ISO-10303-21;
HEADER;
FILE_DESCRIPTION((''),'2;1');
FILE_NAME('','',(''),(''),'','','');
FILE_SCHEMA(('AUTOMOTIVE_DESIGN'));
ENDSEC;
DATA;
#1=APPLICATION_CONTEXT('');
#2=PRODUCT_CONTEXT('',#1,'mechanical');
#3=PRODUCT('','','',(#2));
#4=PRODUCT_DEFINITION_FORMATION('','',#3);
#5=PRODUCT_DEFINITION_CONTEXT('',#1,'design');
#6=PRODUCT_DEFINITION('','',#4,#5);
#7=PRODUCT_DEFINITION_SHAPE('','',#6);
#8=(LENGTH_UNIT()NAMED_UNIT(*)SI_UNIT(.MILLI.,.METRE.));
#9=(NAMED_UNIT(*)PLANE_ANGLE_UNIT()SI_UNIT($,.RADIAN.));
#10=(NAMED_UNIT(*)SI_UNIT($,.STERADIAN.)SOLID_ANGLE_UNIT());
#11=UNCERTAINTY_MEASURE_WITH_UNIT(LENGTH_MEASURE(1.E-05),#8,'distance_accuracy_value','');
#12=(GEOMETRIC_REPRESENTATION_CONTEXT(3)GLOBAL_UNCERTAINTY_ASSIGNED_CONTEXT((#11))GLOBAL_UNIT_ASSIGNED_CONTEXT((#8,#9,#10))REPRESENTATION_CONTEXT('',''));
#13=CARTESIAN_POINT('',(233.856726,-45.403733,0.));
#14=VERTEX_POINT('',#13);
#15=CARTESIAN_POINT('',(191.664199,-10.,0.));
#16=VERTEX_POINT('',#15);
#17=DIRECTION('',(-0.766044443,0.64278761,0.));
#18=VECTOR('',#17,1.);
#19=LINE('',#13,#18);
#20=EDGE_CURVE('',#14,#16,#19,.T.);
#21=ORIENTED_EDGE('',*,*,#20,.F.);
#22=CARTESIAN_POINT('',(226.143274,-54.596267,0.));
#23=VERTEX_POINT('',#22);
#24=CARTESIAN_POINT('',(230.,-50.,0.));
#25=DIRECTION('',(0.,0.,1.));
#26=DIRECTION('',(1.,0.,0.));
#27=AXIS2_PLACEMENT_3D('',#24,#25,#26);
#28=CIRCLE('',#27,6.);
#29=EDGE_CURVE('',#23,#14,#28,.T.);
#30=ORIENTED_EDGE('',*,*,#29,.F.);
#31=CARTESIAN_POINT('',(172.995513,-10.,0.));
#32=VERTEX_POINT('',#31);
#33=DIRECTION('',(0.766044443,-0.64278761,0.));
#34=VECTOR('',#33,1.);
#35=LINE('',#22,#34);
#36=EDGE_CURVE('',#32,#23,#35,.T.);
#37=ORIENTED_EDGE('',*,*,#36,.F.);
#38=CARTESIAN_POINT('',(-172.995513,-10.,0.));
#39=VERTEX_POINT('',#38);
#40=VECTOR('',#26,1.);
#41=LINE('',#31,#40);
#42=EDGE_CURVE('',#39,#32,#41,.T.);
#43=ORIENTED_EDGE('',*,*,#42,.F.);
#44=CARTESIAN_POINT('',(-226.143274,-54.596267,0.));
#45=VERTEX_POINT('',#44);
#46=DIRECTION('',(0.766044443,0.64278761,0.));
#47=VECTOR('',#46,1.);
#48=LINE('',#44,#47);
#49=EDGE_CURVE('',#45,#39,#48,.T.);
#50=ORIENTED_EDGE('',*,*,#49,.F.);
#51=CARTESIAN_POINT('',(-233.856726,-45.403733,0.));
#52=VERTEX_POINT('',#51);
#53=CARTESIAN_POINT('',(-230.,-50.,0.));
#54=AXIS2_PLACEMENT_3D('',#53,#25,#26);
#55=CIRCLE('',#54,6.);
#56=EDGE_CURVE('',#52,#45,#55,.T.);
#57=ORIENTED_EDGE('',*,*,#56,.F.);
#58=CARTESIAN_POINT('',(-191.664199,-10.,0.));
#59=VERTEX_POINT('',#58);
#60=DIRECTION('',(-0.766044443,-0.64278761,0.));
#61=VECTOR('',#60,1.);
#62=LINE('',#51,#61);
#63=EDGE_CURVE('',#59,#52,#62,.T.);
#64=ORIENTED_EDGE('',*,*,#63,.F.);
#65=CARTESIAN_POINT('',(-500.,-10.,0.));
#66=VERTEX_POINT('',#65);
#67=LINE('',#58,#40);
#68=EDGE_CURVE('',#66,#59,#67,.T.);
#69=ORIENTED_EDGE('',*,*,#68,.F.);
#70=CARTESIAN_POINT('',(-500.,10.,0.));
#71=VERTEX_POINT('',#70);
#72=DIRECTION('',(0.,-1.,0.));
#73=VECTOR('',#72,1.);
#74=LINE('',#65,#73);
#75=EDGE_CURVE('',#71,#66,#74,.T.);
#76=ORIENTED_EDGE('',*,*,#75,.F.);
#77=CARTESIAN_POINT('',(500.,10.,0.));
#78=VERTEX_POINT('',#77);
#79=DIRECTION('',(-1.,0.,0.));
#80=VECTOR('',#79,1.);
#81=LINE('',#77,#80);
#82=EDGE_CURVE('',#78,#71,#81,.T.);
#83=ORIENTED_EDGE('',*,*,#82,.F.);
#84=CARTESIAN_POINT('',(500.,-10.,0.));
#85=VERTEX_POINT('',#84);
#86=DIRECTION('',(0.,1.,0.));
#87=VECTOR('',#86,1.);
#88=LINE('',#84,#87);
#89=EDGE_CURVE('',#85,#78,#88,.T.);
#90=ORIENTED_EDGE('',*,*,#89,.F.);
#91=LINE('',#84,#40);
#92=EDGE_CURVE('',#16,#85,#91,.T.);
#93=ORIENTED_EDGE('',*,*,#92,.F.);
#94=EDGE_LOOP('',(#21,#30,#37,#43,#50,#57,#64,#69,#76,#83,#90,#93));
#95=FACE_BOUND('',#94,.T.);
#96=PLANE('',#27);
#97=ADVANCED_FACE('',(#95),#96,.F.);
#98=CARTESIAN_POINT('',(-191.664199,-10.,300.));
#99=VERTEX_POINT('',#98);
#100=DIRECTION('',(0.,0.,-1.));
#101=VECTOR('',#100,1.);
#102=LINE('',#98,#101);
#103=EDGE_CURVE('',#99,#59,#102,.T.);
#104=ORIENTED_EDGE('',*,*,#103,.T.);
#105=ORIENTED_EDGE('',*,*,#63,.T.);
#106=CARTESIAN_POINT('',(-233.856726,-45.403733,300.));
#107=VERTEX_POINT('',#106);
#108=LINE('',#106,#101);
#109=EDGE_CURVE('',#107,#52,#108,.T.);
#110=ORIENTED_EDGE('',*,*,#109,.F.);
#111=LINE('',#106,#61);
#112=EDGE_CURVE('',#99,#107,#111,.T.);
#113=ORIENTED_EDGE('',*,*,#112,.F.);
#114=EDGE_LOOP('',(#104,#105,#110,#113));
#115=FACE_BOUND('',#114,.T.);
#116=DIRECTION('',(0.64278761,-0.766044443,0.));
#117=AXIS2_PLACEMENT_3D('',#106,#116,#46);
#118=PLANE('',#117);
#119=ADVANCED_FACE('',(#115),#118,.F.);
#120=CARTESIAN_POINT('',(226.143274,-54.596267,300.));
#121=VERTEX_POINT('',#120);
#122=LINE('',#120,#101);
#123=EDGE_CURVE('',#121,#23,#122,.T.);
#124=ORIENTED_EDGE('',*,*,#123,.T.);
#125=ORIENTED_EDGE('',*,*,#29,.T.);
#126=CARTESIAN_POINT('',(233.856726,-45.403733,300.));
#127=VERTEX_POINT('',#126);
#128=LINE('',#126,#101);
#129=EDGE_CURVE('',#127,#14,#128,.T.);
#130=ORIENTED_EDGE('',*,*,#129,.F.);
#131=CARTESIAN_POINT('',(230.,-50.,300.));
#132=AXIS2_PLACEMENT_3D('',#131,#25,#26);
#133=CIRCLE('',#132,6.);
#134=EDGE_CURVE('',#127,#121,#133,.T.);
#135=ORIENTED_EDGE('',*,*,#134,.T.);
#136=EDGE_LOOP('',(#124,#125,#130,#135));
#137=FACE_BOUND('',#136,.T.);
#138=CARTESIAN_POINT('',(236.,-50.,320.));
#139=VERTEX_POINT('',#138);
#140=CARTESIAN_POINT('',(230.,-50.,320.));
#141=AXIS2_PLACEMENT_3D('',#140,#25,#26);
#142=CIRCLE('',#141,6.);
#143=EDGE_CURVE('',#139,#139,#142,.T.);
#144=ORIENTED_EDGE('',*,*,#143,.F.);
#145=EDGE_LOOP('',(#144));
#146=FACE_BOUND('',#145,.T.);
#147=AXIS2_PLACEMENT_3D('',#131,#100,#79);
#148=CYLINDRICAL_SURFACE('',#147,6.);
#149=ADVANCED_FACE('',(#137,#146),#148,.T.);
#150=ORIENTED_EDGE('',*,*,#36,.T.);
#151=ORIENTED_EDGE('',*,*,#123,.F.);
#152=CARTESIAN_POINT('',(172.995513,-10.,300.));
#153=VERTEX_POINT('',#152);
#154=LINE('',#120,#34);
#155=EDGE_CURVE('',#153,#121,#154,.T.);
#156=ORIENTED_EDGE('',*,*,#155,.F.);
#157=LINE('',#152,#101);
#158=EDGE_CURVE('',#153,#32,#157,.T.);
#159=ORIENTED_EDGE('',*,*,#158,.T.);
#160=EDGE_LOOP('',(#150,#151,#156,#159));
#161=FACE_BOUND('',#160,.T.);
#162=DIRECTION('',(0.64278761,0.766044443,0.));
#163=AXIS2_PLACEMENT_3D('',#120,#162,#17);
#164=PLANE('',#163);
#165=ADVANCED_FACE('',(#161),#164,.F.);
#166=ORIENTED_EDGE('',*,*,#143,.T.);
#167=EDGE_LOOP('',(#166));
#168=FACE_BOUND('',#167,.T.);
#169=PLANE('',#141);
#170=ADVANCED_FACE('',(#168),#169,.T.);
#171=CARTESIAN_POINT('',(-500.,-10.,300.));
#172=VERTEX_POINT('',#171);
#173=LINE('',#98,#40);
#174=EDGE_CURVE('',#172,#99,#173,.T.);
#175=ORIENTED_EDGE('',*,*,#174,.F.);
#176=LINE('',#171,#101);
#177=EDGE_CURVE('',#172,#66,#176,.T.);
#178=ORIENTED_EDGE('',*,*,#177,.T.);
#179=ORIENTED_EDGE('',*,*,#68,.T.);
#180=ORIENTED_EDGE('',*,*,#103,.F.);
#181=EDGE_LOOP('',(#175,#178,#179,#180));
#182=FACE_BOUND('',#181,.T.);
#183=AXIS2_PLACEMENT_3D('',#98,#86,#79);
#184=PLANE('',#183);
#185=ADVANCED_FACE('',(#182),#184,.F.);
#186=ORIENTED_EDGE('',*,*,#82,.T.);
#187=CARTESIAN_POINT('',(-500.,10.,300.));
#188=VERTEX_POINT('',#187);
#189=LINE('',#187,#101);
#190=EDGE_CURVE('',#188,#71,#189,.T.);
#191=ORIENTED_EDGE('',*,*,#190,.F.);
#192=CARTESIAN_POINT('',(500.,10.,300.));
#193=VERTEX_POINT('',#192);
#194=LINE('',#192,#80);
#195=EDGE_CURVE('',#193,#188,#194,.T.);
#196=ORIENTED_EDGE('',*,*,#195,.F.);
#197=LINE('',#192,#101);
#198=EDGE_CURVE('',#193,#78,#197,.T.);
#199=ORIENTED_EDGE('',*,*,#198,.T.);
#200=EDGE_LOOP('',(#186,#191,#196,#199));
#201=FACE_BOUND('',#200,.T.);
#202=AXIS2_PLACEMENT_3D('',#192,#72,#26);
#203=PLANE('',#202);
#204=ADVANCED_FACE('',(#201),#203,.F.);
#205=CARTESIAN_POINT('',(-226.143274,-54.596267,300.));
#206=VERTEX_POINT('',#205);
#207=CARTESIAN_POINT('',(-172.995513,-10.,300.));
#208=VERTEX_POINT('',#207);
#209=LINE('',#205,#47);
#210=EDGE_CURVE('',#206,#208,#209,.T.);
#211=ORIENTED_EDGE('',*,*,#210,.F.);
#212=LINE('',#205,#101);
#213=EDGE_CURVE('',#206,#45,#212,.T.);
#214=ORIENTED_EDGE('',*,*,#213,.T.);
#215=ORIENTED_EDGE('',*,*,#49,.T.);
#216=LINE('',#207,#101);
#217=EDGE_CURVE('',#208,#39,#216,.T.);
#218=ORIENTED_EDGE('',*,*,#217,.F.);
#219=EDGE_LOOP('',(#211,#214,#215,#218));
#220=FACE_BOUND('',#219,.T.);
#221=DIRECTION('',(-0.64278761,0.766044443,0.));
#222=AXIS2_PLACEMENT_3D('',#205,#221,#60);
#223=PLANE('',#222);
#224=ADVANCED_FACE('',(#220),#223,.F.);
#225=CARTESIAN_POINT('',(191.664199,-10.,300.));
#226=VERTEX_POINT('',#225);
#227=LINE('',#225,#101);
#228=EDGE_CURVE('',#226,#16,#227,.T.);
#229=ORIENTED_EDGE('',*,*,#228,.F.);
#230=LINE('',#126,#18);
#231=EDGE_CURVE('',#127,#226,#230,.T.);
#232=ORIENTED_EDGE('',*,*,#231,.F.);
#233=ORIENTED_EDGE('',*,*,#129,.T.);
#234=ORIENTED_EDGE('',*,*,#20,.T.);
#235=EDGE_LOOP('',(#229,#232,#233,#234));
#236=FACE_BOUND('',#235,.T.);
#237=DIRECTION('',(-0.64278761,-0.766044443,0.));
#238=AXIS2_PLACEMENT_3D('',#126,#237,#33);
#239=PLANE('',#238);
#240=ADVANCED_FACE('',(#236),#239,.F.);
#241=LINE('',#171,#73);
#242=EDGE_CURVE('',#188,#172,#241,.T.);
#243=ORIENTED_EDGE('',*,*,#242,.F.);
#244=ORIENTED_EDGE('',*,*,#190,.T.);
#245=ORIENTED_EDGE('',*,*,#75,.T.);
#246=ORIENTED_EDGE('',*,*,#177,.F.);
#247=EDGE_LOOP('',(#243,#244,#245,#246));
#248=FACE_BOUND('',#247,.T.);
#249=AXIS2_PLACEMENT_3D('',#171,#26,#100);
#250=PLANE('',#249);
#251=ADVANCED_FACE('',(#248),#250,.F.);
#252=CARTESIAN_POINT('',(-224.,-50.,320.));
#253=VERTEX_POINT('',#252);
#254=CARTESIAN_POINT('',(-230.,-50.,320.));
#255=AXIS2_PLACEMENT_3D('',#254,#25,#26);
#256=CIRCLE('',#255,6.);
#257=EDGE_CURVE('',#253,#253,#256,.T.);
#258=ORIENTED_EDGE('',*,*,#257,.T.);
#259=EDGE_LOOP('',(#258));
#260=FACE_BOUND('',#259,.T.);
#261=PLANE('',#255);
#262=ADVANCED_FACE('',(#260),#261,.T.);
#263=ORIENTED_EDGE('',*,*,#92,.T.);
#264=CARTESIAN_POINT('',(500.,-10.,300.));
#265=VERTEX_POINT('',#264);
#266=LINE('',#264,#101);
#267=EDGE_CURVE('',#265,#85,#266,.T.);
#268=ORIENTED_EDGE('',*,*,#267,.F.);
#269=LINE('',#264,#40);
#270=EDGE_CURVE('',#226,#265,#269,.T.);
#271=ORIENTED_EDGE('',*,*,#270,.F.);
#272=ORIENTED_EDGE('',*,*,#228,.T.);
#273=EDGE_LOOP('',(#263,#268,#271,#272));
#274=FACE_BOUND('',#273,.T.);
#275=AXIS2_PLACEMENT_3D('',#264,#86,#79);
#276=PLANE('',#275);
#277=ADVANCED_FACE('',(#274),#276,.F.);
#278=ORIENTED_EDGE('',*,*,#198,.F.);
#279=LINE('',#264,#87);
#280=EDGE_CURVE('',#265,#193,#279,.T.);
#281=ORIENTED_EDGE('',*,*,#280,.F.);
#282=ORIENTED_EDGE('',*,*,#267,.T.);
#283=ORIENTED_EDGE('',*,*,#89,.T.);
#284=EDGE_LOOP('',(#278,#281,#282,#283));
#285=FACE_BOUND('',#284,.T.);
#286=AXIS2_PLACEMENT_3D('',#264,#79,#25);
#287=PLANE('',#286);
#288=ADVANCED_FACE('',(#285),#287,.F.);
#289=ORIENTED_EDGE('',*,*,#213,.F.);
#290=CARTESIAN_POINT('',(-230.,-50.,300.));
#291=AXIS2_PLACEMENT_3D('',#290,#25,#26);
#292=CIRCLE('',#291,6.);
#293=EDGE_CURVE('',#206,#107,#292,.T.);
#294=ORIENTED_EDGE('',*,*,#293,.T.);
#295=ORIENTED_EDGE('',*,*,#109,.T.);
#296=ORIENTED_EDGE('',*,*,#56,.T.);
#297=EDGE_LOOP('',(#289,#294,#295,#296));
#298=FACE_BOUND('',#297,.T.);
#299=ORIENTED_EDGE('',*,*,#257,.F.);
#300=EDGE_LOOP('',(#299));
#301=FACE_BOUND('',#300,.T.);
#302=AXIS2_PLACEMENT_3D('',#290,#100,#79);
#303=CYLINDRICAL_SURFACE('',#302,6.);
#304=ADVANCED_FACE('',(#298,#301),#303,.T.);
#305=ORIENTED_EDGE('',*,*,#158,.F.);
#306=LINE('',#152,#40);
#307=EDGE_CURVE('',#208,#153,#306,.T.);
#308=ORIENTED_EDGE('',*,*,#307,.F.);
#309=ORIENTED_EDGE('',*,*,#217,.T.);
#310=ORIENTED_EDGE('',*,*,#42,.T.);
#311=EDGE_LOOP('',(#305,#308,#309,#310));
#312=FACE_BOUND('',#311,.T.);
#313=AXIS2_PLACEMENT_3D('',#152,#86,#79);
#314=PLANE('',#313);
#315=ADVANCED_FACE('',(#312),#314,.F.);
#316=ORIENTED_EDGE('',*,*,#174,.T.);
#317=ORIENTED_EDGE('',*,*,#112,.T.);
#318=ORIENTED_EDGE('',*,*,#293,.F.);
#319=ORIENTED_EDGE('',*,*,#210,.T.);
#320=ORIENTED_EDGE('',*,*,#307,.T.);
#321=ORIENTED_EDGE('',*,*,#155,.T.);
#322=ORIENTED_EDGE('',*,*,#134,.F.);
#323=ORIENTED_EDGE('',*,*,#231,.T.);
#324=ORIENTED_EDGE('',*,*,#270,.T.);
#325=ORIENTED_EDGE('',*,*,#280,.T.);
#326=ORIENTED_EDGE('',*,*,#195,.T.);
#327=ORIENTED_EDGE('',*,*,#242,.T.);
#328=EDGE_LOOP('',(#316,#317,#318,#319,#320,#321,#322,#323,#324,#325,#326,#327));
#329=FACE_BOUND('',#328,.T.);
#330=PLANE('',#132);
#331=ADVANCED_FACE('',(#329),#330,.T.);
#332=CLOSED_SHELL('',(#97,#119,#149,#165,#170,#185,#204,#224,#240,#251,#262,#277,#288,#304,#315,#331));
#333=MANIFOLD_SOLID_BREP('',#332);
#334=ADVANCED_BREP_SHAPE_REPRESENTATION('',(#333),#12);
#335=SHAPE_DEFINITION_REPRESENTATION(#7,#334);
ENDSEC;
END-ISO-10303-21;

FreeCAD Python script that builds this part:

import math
import FreeCAD as App
import Part
import Sketcher

V = App.Vector
Q = App.Units.Quantity

doc = App.newDocument("Part")
body = doc.addObject("PartDesign::Body", "Body")

sketch1 = body.newObject("Sketcher::SketchObject", "Sketch")
sketch1.AttachmentSupport = (doc.getObject("XY_Plane"), [""])
sketch1.MapMode = "FlatFace"
sketch1.addGeometry([
    Part.LineSegment(V(-192, -10, 0), V(-234, -45, 0)),
    Part.ArcOfCircle(Part.Circle(V(-230, -50, 0), V(0, 0, 1), 6), math.radians(130), math.radians(310)),
    Part.LineSegment(V(-226, -55, 0), V(-173, -10, 0)),
    Part.LineSegment(V(-173, -10, 0), V(173, -10, 0)),
    Part.LineSegment(V(173, -10, 0), V(226, -55, 0)),
    Part.ArcOfCircle(Part.Circle(V(230, -50, 0), V(0, 0, 1), 6), math.radians(-130), math.radians(50)),
    Part.LineSegment(V(234, -45, 0), V(192, -10, 0)),
    Part.LineSegment(V(192, -10, 0), V(500, -10, 0)),
    Part.LineSegment(V(500, -10, 0), V(500, 10, 0)),
    Part.LineSegment(V(500, 10, 0), V(-500, 10, 0)),
    Part.LineSegment(V(-500, 10, 0), V(-500, -10, 0)),
    Part.LineSegment(V(-500, -10, 0), V(-192, -10, 0)),
], False)
sketch1.addConstraint([
    Sketcher.Constraint("Tangent", 0, 2, 1, 1),
    Sketcher.Constraint("Tangent", 1, 2, 2, 1),
    Sketcher.Constraint("Coincident", 2, 2, 3, 1),
    Sketcher.Constraint("Coincident", 3, 2, 4, 1),
    Sketcher.Constraint("Tangent", 4, 2, 5, 1),
    Sketcher.Constraint("Tangent", 5, 2, 6, 1),
    Sketcher.Constraint("Coincident", 6, 2, 7, 1),
    Sketcher.Constraint("Coincident", 7, 2, 8, 1),
    Sketcher.Constraint("Coincident", 8, 2, 9, 1),
    Sketcher.Constraint("Coincident", 9, 2, 10, 1),
    Sketcher.Constraint("Coincident", 10, 2, 11, 1),
    Sketcher.Constraint("Coincident", 11, 2, 0, 1),
    Sketcher.Constraint("Horizontal", 3),
    Sketcher.Constraint("Horizontal", 7),
    Sketcher.Constraint("Vertical", 8),
    Sketcher.Constraint("Horizontal", 9),
    Sketcher.Constraint("Vertical", 10),
    Sketcher.Constraint("Horizontal", 11),
    Sketcher.Constraint("Equal", 1, 5),
    Sketcher.Constraint("Symmetric", 7, 2, 9, 2, -1, 1),
    Sketcher.Constraint("Symmetric", 1, 3, 5, 3, -2),
    Sketcher.Constraint("Symmetric", 6, 2, 11, 2, -2),
    Sketcher.Constraint("Parallel", 0, 2),
    Sketcher.Constraint("Parallel", 4, 6),
    Sketcher.Constraint("Horizontal", 3, 2, 6, 2),
    Sketcher.Constraint("Radius", 1, 6.0),
    Sketcher.Constraint("DistanceX", 9, 2, 9, 1, 1000.0),
    Sketcher.Constraint("DistanceY", 8, 1, 8, 2, 20.0),
    Sketcher.Constraint("Angle", 0, Q("-140 deg")),
    Sketcher.Constraint("DistanceX", 1, 3, -1, 1, 230.0),
    Sketcher.Constraint("DistanceY", 1, 3, -1, 1, 50.0),
])
pad1 = body.newObject("PartDesign::Pad", "Pad")
pad1.Profile = sketch1
pad1.Length = 300

sketch2 = body.newObject("Sketcher::SketchObject", "Sketch001")
sketch2.AttachmentSupport = (doc.getObject("XY_Plane"), [""])
sketch2.MapMode = "FlatFace"
sketch2.AttachmentOffset = App.Placement(V(0, 0, 300), App.Rotation())
sketch2.addGeometry([
    Part.Circle(V(-230, -50, 0), V(0, 0, 1), 6),
    Part.Circle(V(230, -50, 0), V(0, 0, 1), 6),
], False)
sketch2.addConstraint([
    Sketcher.Constraint("Equal", 0, 1),
    Sketcher.Constraint("Symmetric", 0, 3, 1, 3, -2),
    Sketcher.Constraint("Diameter", 0, 12.0),
    Sketcher.Constraint("DistanceX", 0, 3, -1, 1, 230.0),
    Sketcher.Constraint("DistanceY", 0, 3, -1, 1, 50.0),
])
pad2 = body.newObject("PartDesign::Pad", "Pad001")
pad2.Profile = sketch2
pad2.Length = 20

doc.recompute()
